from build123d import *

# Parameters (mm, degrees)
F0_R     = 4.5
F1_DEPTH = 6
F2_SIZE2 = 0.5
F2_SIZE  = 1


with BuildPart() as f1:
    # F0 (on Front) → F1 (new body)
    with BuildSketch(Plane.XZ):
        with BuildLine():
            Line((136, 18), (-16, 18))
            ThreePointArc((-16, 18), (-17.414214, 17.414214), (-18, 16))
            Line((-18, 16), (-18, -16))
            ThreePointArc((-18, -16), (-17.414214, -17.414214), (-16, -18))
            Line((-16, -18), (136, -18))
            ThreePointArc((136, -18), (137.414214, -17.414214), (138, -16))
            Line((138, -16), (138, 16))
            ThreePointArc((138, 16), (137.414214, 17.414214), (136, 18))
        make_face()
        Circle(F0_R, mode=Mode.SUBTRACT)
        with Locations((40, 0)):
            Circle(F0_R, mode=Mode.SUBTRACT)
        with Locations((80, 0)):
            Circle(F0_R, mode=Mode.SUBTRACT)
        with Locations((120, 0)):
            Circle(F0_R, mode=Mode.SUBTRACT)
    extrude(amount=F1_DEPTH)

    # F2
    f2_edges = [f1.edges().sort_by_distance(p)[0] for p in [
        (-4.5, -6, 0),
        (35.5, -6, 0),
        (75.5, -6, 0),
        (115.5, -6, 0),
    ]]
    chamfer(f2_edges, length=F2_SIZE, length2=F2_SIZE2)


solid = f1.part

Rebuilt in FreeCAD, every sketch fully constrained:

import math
import FreeCAD as App
import Part
import Sketcher


def edges_at(feature, points):
    """Names of the edges that pass closest to the given points."""
    edges = feature.Shape.Edges
    near = lambda p: min(range(len(edges)), key=lambda i: edges[i].distToShape(Part.Vertex(*p))[0])
    return sorted({f"Edge{near(p) + 1}" for p in points})

doc = App.newDocument("Part")
body = doc.addObject("PartDesign::Body", "Body")

# Sketch on XZ plane
sketch1 = doc.addObject("Sketcher::SketchObject", "Sketch")
body.addObject(sketch1)
sketch1.AttachmentSupport = (doc.XZ_Plane, [""])
sketch1.MapMode = "FlatFace"
sketch1.addGeometry([
    Part.LineSegment(App.Vector(136, 18, 0), App.Vector(-16, 18, 0)),  # 0
    Part.ArcOfCircle(Part.Circle(App.Vector(-16, 16, 0), App.Vector(0, 0, 1), 2), math.radians(90), math.radians(180)),  # 1
    Part.LineSegment(App.Vector(-18, 16, 0), App.Vector(-18, -16, 0)),  # 2
    Part.ArcOfCircle(Part.Circle(App.Vector(-16, -16, 0), App.Vector(0, 0, 1), 2), math.radians(180), math.radians(270)),  # 3
    Part.LineSegment(App.Vector(-16, -18, 0), App.Vector(136, -18, 0)),  # 4
    Part.ArcOfCircle(Part.Circle(App.Vector(136, -16, 0), App.Vector(0, 0, 1), 2), math.radians(-90), math.radians(0)),  # 5
    Part.LineSegment(App.Vector(138, -16, 0), App.Vector(138, 16, 0)),  # 6
    Part.ArcOfCircle(Part.Circle(App.Vector(136, 16, 0), App.Vector(0, 0, 1), 2), math.radians(0), math.radians(90)),  # 7
    Part.Circle(App.Vector(0, 0, 0), App.Vector(0, 0, 1), 4.5),  # 8
    Part.Circle(App.Vector(40, 0, 0), App.Vector(0, 0, 1), 4.5),  # 9
    Part.Circle(App.Vector(80, 0, 0), App.Vector(0, 0, 1), 4.5),  # 10
    Part.Circle(App.Vector(120, 0, 0), App.Vector(0, 0, 1), 4.5),  # 11
], False)
sketch1.addConstraint([
    Sketcher.Constraint("Tangent", 0, 2, 1, 1),
    Sketcher.Constraint("Tangent", 1, 2, 2, 1),
    Sketcher.Constraint("Tangent", 2, 2, 3, 1),
    Sketcher.Constraint("Tangent", 3, 2, 4, 1),
    Sketcher.Constraint("Tangent", 4, 2, 5, 1),
    Sketcher.Constraint("Tangent", 5, 2, 6, 1),
    Sketcher.Constraint("Tangent", 6, 2, 7, 1),
    Sketcher.Constraint("Tangent", 7, 2, 0, 1),
    Sketcher.Constraint("Horizontal", 0),
    Sketcher.Constraint("Vertical", 2),
    Sketcher.Constraint("Horizontal", 4),
    Sketcher.Constraint("Vertical", 6),
    Sketcher.Constraint("Coincident", 8, 3, -1, 1),
    Sketcher.Constraint("Equal", 1, 3),
    Sketcher.Constraint("Equal", 3, 5),
    Sketcher.Constraint("Equal", 5, 7),
    Sketcher.Constraint("Equal", 8, 9),
    Sketcher.Constraint("Equal", 9, 10),
    Sketcher.Constraint("Equal", 10, 11),
    Sketcher.Constraint("PointOnObject", 9, 3, -1),
    Sketcher.Constraint("PointOnObject", 10, 3, -1),
    Sketcher.Constraint("PointOnObject", 11, 3, -1),
    Sketcher.Constraint("Diameter", 8, 9.0),
    Sketcher.Constraint("Radius", 1, 1.999999),
    Sketcher.Constraint("DistanceX", 0, 2, 0, 1, 152.0),
    Sketcher.Constraint("DistanceY", 2, 2, 2, 1, 32.0),
    Sketcher.Constraint("DistanceX", 1, 3, -1, 1, 16.000001),
    Sketcher.Constraint("DistanceY", -1, 1, 1, 3, 16.000001),
    Sketcher.Constraint("DistanceX", -1, 1, 9, 3, 40.0),
    Sketcher.Constraint("DistanceX", -1, 1, 10, 3, 80.0),
    Sketcher.Constraint("DistanceX", -1, 1, 11, 3, 120.0),
])
pad1 = doc.addObject("PartDesign::Pad", "Pad")
body.addObject(pad1)
pad1.Profile = sketch1
pad1.Length = 6
doc.recompute()

chamfer = doc.addObject("PartDesign::Chamfer", "Chamfer")
body.addObject(chamfer)
chamfer.Base = (pad1, edges_at(pad1, [
    (-4.5, -6, 0),
    (35.5, -6, 0),
    (75.5, -6, 0),
    (115.5, -6, 0),
]))
chamfer.ChamferType = "Two distances"
chamfer.Size = 1
chamfer.Size2 = 0.5

doc.recompute()
